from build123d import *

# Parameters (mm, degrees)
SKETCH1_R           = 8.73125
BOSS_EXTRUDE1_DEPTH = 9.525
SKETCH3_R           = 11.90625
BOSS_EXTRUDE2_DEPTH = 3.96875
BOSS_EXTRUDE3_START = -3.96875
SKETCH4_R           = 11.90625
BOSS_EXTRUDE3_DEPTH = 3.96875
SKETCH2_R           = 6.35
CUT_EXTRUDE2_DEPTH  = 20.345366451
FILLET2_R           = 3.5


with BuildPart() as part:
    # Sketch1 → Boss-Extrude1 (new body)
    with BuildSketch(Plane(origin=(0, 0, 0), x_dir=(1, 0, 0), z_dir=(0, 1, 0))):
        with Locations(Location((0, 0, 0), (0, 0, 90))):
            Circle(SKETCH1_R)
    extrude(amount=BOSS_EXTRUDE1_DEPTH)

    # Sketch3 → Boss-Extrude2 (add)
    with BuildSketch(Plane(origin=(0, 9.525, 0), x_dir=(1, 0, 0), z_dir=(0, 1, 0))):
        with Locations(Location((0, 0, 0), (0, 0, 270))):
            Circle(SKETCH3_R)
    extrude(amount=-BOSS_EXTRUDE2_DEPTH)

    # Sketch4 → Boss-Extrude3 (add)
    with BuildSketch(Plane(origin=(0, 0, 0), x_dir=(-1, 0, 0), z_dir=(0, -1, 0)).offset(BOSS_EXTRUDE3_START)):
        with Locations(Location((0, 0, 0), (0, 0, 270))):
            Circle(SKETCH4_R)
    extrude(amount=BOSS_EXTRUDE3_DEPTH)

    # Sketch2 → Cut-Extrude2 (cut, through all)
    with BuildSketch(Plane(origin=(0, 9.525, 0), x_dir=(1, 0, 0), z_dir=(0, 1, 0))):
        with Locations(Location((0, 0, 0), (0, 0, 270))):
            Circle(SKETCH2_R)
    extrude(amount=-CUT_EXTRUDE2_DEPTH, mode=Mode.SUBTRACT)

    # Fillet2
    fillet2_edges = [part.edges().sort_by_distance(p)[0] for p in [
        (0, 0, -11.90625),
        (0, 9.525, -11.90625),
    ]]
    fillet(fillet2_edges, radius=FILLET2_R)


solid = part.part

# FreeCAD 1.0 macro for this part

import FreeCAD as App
import Part
import Sketcher
Q = App.Units.Quantity


def edges_at(feature, points):
    """Names of the edges that pass closest to the given points."""
    edges = feature.Shape.Edges
    near = lambda p: min(range(len(edges)), key=lambda i: edges[i].distToShape(Part.Vertex(*p))[0])
    return sorted({f"Edge{near(p) + 1}" for p in points})

doc = App.newDocument("Part")
body = doc.addObject("PartDesign::Body", "Body")

# Sketch on XZ plane
sketch1 = doc.addObject("Sketcher::SketchObject", "Sketch")
body.addObject(sketch1)
sketch1.AttachmentSupport = (doc.XZ_Plane, [""])
sketch1.MapMode = "FlatFace"
sketch1.addGeometry(Part.Circle(App.Vector(0, 0, 0), App.Vector(0, 0, 1), 9), False)
sketch1.addConstraint([
    Sketcher.Constraint("Coincident", 0, 3, -1, 1),
    Sketcher.Constraint("Diameter", 0, Q("0.6875 in")),
])
pad1 = doc.addObject("PartDesign::Pad", "Pad")
body.addObject(pad1)
pad1.Profile = sketch1
pad1.Length = Q("0.375 in")
pad1.Reversed = True

# Sketch on XZ plane
sketch2 = doc.addObject("Sketcher::SketchObject", "Sketch001")
body.addObject(sketch2)
sketch2.AttachmentSupport = (doc.XZ_Plane, [""])
sketch2.MapMode = "FlatFace"
sketch2.AttachmentOffset = App.Placement(App.Vector(0, 0, -0.375 * 25.4), App.Rotation())
sketch2.addGeometry(Part.Circle(App.Vector(0, 0, 0), App.Vector(0, 0, 1), 12), False)
sketch2.addConstraint([
    Sketcher.Constraint("Coincident", 0, 3, -1, 1),
    Sketcher.Constraint("Diameter", 0, Q("0.9375 in")),
])
pad2 = doc.addObject("PartDesign::Pad", "Pad001")
body.addObject(pad2)
pad2.Profile = sketch2
pad2.Length = Q("0.15625 in")

# Sketch on XZ plane
sketch3 = doc.addObject("Sketcher::SketchObject", "Sketch002")
body.addObject(sketch3)
sketch3.AttachmentSupport = (doc.XZ_Plane, [""])
sketch3.MapMode = "FlatFace"
sketch3.AttachmentOffset = App.Placement(App.Vector(0, 0, -0.15625 * 25.4), App.Rotation())
sketch3.addGeometry(Part.Circle(App.Vector(0, 0, 0), App.Vector(0, 0, 1), 12), False)
sketch3.addConstraint([
    Sketcher.Constraint("Coincident", 0, 3, -1, 1),
    Sketcher.Constraint("Diameter", 0, Q("0.9375 in")),
])
pad3 = doc.addObject("PartDesign::Pad", "Pad002")
body.addObject(pad3)
pad3.Profile = sketch3
pad3.Length = Q("0.15625 in")

# Sketch on XZ plane
sketch4 = doc.addObject("Sketcher::SketchObject", "Sketch003")
body.addObject(sketch4)
sketch4.AttachmentSupport = (doc.XZ_Plane, [""])
sketch4.MapMode = "FlatFace"
sketch4.AttachmentOffset = App.Placement(App.Vector(0, 0, -0.375 * 25.4), App.Rotation())
sketch4.addGeometry(Part.Circle(App.Vector(0, 0, 0), App.Vector(0, 0, 1), 6), False)
sketch4.addConstraint([
    Sketcher.Constraint("Coincident", 0, 3, -1, 1),
    Sketcher.Constraint("Diameter", 0, Q("0.5 in")),
])
pocket1 = doc.addObject("PartDesign::Pocket", "Pocket")
body.addObject(pocket1)
pocket1.Profile = sketch4
pocket1.Type = "ThroughAll"
pocket1.Reversed = True
doc.recompute()

fillet = doc.addObject("PartDesign::Fillet", "Fillet")
body.addObject(fillet)
fillet.Base = (pocket1, edges_at(pocket1, [(0, 0, -11.906), (0, 9.525, -11.906)]))
fillet.Radius = 3.5

doc.recompute()
